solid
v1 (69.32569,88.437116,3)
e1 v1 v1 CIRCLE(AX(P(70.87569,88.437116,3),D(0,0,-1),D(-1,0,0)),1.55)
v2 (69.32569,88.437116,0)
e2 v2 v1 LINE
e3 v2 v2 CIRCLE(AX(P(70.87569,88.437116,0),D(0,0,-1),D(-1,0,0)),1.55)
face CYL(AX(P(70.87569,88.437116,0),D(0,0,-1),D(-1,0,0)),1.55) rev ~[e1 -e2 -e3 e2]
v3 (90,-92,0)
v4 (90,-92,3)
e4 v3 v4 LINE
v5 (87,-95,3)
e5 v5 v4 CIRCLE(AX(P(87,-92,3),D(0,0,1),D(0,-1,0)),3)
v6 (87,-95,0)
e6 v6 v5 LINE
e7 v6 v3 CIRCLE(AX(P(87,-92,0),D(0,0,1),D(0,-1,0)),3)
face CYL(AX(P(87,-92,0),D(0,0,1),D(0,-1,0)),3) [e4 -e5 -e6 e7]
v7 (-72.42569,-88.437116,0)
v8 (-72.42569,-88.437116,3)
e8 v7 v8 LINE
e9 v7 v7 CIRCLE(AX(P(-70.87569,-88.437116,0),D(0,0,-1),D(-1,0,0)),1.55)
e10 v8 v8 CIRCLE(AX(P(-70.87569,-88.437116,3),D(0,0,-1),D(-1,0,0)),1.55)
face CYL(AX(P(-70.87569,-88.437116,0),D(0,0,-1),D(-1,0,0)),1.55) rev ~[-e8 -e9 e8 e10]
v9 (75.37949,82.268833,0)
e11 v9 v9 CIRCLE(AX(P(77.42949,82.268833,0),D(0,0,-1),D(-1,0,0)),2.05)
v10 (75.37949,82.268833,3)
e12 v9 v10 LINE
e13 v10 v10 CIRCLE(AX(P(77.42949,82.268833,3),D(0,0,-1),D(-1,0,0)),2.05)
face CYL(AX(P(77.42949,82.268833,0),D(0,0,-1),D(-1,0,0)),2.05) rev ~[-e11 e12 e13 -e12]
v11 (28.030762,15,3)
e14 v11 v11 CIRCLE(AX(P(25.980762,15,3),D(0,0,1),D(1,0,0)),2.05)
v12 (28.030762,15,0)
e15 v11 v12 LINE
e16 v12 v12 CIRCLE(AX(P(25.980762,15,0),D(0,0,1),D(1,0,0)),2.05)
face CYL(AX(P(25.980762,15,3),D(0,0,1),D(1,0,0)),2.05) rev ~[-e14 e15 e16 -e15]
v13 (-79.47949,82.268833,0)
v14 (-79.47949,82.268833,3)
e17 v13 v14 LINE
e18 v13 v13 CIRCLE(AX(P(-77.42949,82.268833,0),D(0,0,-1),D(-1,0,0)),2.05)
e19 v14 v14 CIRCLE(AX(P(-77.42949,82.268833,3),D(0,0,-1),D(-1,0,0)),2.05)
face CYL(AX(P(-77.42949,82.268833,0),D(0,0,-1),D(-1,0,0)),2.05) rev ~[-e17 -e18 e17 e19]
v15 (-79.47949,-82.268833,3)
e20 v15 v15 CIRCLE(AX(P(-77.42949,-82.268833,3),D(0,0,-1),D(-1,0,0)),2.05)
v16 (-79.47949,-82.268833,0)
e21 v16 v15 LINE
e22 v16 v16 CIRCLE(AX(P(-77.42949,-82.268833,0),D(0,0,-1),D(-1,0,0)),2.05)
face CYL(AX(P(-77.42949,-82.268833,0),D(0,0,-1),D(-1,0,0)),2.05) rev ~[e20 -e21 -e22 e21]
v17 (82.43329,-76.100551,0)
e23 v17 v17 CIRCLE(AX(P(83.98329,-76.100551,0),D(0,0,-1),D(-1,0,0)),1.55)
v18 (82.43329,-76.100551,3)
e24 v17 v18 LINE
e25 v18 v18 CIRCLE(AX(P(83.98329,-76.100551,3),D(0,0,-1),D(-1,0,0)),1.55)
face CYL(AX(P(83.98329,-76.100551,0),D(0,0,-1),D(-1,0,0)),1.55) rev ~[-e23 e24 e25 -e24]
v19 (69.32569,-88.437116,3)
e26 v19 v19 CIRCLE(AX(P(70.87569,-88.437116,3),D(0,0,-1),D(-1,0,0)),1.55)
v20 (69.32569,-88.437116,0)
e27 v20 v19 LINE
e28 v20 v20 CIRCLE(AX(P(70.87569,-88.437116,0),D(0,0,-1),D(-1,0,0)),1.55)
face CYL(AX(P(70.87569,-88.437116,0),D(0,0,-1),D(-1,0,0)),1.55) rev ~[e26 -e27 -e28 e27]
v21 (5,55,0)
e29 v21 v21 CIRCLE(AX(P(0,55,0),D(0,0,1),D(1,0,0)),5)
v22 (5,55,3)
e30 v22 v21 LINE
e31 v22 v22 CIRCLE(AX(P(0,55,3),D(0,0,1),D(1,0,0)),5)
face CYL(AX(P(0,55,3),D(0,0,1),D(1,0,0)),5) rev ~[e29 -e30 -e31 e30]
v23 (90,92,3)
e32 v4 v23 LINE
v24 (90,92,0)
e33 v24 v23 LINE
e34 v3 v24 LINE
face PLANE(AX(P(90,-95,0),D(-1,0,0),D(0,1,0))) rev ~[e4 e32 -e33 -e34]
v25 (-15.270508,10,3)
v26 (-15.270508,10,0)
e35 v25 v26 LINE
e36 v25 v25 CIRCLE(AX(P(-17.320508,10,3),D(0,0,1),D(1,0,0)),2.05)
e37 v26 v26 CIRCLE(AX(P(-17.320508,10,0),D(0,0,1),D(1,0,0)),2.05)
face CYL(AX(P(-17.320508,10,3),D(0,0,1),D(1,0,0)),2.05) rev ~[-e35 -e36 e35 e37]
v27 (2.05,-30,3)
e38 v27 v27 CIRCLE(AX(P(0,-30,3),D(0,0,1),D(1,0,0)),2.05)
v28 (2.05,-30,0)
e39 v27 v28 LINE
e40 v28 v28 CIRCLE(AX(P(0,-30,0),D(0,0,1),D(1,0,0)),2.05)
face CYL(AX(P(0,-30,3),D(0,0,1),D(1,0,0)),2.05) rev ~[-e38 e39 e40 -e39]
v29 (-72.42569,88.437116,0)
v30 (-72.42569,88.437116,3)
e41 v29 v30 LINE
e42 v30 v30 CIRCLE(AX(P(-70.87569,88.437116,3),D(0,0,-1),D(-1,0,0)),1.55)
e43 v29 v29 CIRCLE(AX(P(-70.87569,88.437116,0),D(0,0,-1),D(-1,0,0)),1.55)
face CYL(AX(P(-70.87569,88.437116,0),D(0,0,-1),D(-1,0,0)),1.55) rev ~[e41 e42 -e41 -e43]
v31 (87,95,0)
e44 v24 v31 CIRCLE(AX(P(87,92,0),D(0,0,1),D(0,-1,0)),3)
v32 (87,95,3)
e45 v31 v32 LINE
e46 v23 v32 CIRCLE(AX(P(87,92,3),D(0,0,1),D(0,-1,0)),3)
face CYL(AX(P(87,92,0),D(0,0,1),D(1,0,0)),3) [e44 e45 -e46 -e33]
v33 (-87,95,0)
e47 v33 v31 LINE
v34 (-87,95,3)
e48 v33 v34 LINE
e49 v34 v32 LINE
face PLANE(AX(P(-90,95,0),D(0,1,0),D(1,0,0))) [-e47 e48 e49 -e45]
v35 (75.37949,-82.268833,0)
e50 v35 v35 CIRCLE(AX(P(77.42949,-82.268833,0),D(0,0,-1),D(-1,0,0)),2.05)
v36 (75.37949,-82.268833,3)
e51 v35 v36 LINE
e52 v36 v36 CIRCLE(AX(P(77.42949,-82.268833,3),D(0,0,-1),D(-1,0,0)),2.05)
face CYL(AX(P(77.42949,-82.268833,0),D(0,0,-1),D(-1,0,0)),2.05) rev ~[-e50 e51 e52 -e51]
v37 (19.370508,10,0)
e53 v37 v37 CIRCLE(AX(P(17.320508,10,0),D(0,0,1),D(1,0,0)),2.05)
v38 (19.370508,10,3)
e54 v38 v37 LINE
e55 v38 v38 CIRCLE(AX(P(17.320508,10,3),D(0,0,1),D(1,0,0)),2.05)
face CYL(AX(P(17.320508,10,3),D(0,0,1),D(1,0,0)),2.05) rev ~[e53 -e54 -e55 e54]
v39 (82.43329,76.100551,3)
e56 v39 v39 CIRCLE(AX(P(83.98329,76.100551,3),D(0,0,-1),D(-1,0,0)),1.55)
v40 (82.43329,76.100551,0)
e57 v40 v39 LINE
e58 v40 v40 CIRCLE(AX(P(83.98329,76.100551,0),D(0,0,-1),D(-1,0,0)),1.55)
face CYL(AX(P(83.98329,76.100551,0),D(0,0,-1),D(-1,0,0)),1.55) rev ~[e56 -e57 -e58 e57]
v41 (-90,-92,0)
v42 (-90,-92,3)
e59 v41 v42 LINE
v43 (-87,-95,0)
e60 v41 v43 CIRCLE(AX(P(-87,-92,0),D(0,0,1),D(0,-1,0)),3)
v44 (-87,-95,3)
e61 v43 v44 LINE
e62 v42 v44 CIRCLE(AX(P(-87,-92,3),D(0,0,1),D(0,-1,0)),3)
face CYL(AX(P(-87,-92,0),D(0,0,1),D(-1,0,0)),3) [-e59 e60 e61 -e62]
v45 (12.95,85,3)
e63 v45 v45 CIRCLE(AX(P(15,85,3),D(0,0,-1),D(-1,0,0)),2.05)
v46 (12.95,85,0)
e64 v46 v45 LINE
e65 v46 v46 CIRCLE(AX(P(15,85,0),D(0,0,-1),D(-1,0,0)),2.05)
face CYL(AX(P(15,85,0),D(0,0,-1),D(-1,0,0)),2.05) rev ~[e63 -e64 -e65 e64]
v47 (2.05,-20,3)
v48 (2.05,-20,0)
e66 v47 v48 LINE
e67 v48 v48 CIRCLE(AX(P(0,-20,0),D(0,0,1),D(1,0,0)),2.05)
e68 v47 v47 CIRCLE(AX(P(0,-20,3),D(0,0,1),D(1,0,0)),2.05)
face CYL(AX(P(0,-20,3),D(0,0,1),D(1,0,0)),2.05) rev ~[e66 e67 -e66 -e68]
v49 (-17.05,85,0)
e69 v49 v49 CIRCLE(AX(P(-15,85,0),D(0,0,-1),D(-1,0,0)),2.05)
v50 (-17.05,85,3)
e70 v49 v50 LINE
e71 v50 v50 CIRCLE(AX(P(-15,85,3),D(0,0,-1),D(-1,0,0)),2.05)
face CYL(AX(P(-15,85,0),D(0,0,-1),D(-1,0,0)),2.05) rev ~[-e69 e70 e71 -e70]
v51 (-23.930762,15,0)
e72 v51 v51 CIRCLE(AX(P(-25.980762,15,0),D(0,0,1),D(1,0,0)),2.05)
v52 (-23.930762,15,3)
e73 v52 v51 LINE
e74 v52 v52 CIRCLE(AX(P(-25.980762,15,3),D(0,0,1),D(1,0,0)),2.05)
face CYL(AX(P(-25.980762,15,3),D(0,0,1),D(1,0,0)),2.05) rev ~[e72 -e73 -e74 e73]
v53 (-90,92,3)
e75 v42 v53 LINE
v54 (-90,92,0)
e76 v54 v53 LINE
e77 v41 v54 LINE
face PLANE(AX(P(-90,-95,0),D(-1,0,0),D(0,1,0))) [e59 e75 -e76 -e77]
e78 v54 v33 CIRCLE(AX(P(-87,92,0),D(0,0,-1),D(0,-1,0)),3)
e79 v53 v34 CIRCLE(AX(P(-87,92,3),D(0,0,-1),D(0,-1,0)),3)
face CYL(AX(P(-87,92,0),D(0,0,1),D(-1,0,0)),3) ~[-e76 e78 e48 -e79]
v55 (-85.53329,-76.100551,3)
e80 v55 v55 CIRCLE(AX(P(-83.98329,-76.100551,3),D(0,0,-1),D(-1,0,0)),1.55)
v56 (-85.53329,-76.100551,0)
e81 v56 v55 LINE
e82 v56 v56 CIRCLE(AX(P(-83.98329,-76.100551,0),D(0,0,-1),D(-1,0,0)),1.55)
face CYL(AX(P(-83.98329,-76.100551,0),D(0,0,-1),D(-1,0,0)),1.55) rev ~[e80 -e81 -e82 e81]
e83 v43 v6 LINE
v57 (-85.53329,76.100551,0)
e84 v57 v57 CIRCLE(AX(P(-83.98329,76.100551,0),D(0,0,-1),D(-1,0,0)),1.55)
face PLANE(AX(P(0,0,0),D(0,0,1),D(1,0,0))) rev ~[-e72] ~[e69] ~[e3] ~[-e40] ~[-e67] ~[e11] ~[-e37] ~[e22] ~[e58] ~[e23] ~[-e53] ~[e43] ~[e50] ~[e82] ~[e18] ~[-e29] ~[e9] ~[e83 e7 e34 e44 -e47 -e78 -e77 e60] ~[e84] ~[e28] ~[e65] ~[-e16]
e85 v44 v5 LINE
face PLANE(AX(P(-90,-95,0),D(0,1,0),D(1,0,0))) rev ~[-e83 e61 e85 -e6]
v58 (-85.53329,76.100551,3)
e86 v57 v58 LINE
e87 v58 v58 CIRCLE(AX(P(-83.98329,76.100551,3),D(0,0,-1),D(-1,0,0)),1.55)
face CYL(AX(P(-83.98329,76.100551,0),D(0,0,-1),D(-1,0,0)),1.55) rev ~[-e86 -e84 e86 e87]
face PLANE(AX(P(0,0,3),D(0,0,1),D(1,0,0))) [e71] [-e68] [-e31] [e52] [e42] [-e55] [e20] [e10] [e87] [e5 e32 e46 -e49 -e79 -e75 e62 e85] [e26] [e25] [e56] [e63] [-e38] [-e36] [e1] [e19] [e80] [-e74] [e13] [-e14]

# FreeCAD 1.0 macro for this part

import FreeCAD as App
import Part
import Sketcher
from FreeCAD import Vector


def edges_at(feature, points):
    """Names of the edges that pass closest to the given points."""
    edges = feature.Shape.Edges
    near = lambda p: min(range(len(edges)), key=lambda i: edges[i].distToShape(Part.Vertex(*p))[0])
    return sorted({f"Edge{near(p) + 1}" for p in points})


def add_polygon(sketch, points):
    """Adds a closed chain of lines whose ends are joined by coincident constraints."""
    first, n = sketch.GeometryCount, len(points)
    for a, b in zip(points, points[1:] + points[:1]):
        sketch.addGeometry(Part.LineSegment(App.Vector(*a, 0), App.Vector(*b, 0)), False)
    for i in range(n):
        sketch.addConstraint(Sketcher.Constraint("Coincident", first + i, 2, first + (i + 1) % n, 1))

doc = App.newDocument("Part")
body = doc.addObject("PartDesign::Body", "Body")

# Sketch on XY plane
sketch1 = body.newObject("Sketcher::SketchObject", "Sketch")
sketch1.AttachmentSupport = (doc.getObject("XY_Plane"), [""])
sketch1.MapMode = "FlatFace"
add_polygon(sketch1, [(-90, 95), (-90, -95), (90, -95), (90, 95)])  # lines 0-3
sketch1.addConstraint([
    Sketcher.Constraint("Vertical", 0),
    Sketcher.Constraint("Horizontal", 1),
    Sketcher.Constraint("Vertical", 2),
    Sketcher.Constraint("Horizontal", 3),
    Sketcher.Constraint("Symmetric", 0, 2, 2, 2, -1, 1),
    Sketcher.Constraint("DistanceX", 1, 1, 1, 2, 180.0),
    Sketcher.Constraint("DistanceY", 0, 2, 0, 1, 190.0),
])
pad1 = body.newObject("PartDesign::Pad", "Pad")
pad1.Profile = sketch1
pad1.Length = 3
doc.recompute()

fillet = body.newObject("PartDesign::Fillet", "Fillet")
fillet.Base = (pad1, edges_at(pad1, [
    (90, -95, 1.5),
    (-90, -95, 1.5),
    (-90, 95, 1.5),
    (90, 95, 1.5),
]))
fillet.Radius = 3

# Sketch on XY plane
sketch2 = body.newObject("Sketcher::SketchObject", "Sketch001")
sketch2.AttachmentSupport = (doc.getObject("XY_Plane"), [""])
sketch2.MapMode = "FlatFace"
sketch2.addGeometry([
    Part.Circle(Vector(77.42949, 82.268833, 0), Vector(0, 0, 1), 2.05),  # 0
    Part.Circle(Vector(-77.42949, 82.268833, 0), Vector(0, 0, 1), 2.05),  # 1
    Part.Circle(Vector(77.42949, -82.268833, 0), Vector(0, 0, 1), 2.05),  # 2
    Part.Circle(Vector(-77.42949, -82.268833, 0), Vector(0, 0, 1), 2.05),  # 3
    Part.Circle(Vector(70.87569, 88.437116, 0), Vector(0, 0, 1), 1.55),  # 4
    Part.Circle(Vector(83.98329, 76.100551, 0), Vector(0, 0, 1), 1.55),  # 5
    Part.Circle(Vector(-70.87569, 88.437116, 0), Vector(0, 0, 1), 1.55),  # 6
    Part.Circle(Vector(-83.98329, 76.100551, 0), Vector(0, 0, 1), 1.55),  # 7
    Part.Circle(Vector(83.98329, -76.100551, 0), Vector(0, 0, 1), 1.55),  # 8
    Part.Circle(Vector(70.87569, -88.437116, 0), Vector(0, 0, 1), 1.55),  # 9
    Part.Circle(Vector(-83.98329, -76.100551, 0), Vector(0, 0, 1), 1.55),  # 10
    Part.Circle(Vector(-70.87569, -88.437116, 0), Vector(0, 0, 1), 1.55),  # 11
], False)
sketch2.addConstraint([
    Sketcher.Constraint("Equal", 0, 1),
    Sketcher.Constraint("Equal", 1, 2),
    Sketcher.Constraint("Equal", 2, 3),
    Sketcher.Constraint("Equal", 4, 5),
    Sketcher.Constraint("Equal", 5, 6),
    Sketcher.Constraint("Equal", 6, 7),
    Sketcher.Constraint("Equal", 7, 8),
    Sketcher.Constraint("Equal", 8, 9),
    Sketcher.Constraint("Equal", 9, 10),
    Sketcher.Constraint("Equal", 10, 11),
    Sketcher.Constraint("Symmetric", 1, 3, 2, 3, -1, 1),
    Sketcher.Constraint("Symmetric", 0, 3, 3, 3, -1, 1),
    Sketcher.Constraint("Symmetric", 7, 3, 8, 3, -1, 1),
    Sketcher.Constraint("Symmetric", 6, 3, 9, 3, -1, 1),
    Sketcher.Constraint("Symmetric", 5, 3, 10, 3, -1, 1),
    Sketcher.Constraint("Symmetric", 4, 3, 11, 3, -1, 1),
    Sketcher.Constraint("Symmetric", 0, 3, 1, 3, -2),
    Sketcher.Constraint("Symmetric", 4, 3, 6, 3, -2),
    Sketcher.Constraint("Symmetric", 5, 3, 7, 3, -2),
    Sketcher.Constraint("Diameter", 0, 4.1),
    Sketcher.Constraint("Diameter", 4, 3.1),
    Sketcher.Constraint("DistanceX", 4, 3, 0, 3, 6.5538),
    Sketcher.Constraint("DistanceX", 0, 3, 5, 3, 6.5538),
    Sketcher.Constraint("DistanceX", -1, 1, 0, 3, 77.42949),
    Sketcher.Constraint("DistanceY", -1, 1, 5, 3, 76.100551),
    Sketcher.Constraint("DistanceY", 2, 3, 4, 3, 170.705949),
    Sketcher.Constraint("DistanceY", -1, 1, 0, 3, 82.268833),
])
pocket1 = body.newObject("PartDesign::Pocket", "Pocket")
pocket1.Profile = sketch2
pocket1.Length = 3
pocket1.Reversed = True

# Sketch on XY plane
sketch3 = body.newObject("Sketcher::SketchObject", "Sketch002")
sketch3.AttachmentSupport = (doc.getObject("XY_Plane"), [""])
sketch3.MapMode = "FlatFace"
sketch3.AttachmentOffset = App.Placement(Vector(0, 0, 3), App.Rotation())
sketch3.addGeometry(Part.Circle(Vector(0, -20, 0), Vector(0, 0, 1), 2.05), False)
sketch3.addConstraint([
    Sketcher.Constraint("PointOnObject", 0, 3, -2),
    Sketcher.Constraint("Diameter", 0, 4.1),
    Sketcher.Constraint("DistanceY", 0, 3, -1, 1, 20.0),
])
pocket2 = body.newObject("PartDesign::Pocket", "Pocket001")
pocket2.Profile = sketch3
pocket2.Type = "UpToFirst"

# Sketch on XY plane
sketch4 = body.newObject("Sketcher::SketchObject", "Sketch003")
sketch4.AttachmentSupport = (doc.getObject("XY_Plane"), [""])
sketch4.MapMode = "FlatFace"
sketch4.AttachmentOffset = App.Placement(Vector(0, 0, 3), App.Rotation())
sketch4.addGeometry(Part.Circle(Vector(0, -30, 0), Vector(0, 0, 1), 2.05), False)
sketch4.addConstraint([
    Sketcher.Constraint("PointOnObject", 0, 3, -2),
    Sketcher.Constraint("Diameter", 0, 4.1),
    Sketcher.Constraint("DistanceY", 0, 3, -1, 1, 30.0),
])
pocket3 = body.newObject("PartDesign::Pocket", "Pocket002")
pocket3.Profile = sketch4
pocket3.Type = "UpToFirst"

# Sketch on XY plane
sketch5 = body.newObject("Sketcher::SketchObject", "Sketch004")
sketch5.AttachmentSupport = (doc.getObject("XY_Plane"), [""])
sketch5.MapMode = "FlatFace"
sketch5.AttachmentOffset = App.Placement(Vector(0, 0, 3), App.Rotation())
sketch5.addGeometry(Part.Circle(Vector(-17.320508, 10, 0), Vector(0, 0, 1), 2.05), False)
sketch5.addConstraint([
    Sketcher.Constraint("Diameter", 0, 4.1),
    Sketcher.Constraint("DistanceY", -1, 1, 0, 3, 10.0),
    Sketcher.Constraint("DistanceX", 0, 3, -1, 1, 17.320508),
])
pocket4 = body.newObject("PartDesign::Pocket", "Pocket003")
pocket4.Profile = sketch5
pocket4.Type = "UpToFirst"

# Sketch on XY plane
sketch6 = body.newObject("Sketcher::SketchObject", "Sketch005")
sketch6.AttachmentSupport = (doc.getObject("XY_Plane"), [""])
sketch6.MapMode = "FlatFace"
sketch6.AttachmentOffset = App.Placement(Vector(0, 0, 3), App.Rotation())
sketch6.addGeometry(Part.Circle(Vector(-25.980762, 15, 0), Vector(0, 0, 1), 2.05), False)
sketch6.addConstraint([
    Sketcher.Constraint("Diameter", 0, 4.1),
    Sketcher.Constraint("DistanceY", -1, 1, 0, 3, 15.0),
    Sketcher.Constraint("DistanceX", 0, 3, -1, 1, 25.980762),
])
pocket5 = body.newObject("PartDesign::Pocket", "Pocket004")
pocket5.Profile = sketch6
pocket5.Type = "UpToFirst"

# Sketch on XY plane
sketch7 = body.newObject("Sketcher::SketchObject", "Sketch006")
sketch7.AttachmentSupport = (doc.getObject("XY_Plane"), [""])
sketch7.MapMode = "FlatFace"
sketch7.AttachmentOffset = App.Placement(Vector(0, 0, 3), App.Rotation())
sketch7.addGeometry(Part.Circle(Vector(17.320508, 10, 0), Vector(0, 0, 1), 2.05), False)
sketch7.addConstraint([
    Sketcher.Constraint("Diameter", 0, 4.1),
    Sketcher.Constraint("DistanceY", -1, 1, 0, 3, 10.0),
    Sketcher.Constraint("DistanceX", -1, 1, 0, 3, 17.320508),
])
pocket6 = body.newObject("PartDesign::Pocket", "Pocket005")
pocket6.Profile = sketch7
pocket6.Type = "UpToFirst"

# Sketch on XY plane
sketch8 = body.newObject("Sketcher::SketchObject", "Sketch007")
sketch8.AttachmentSupport = (doc.getObject("XY_Plane"), [""])
sketch8.MapMode = "FlatFace"
sketch8.AttachmentOffset = App.Placement(Vector(0, 0, 3), App.Rotation())
sketch8.addGeometry(Part.Circle(Vector(25.980762, 15, 0), Vector(0, 0, 1), 2.05), False)
sketch8.addConstraint([
    Sketcher.Constraint("Diameter", 0, 4.1),
    Sketcher.Constraint("DistanceY", -1, 1, 0, 3, 15.0),
    Sketcher.Constraint("DistanceX", -1, 1, 0, 3, 25.980762),
])
pocket7 = body.newObject("PartDesign::Pocket", "Pocket006")
pocket7.Profile = sketch8
pocket7.Type = "UpToFirst"

# Sketch on XY plane
sketch9 = body.newObject("Sketcher::SketchObject", "Sketch008")
sketch9.AttachmentSupport = (doc.getObject("XY_Plane"), [""])
sketch9.MapMode = "FlatFace"
sketch9.addGeometry(Part.Circle(Vector(15, 85, 0), Vector(0, 0, 1), 2.05), False)
sketch9.addConstraint([
    Sketcher.Constraint("Diameter", 0, 4.1),
    Sketcher.Constraint("DistanceX", -1, 1, 0, 3, 15.0),
    Sketcher.Constraint("DistanceY", -1, 1, 0, 3, 85.0),
])
pocket8 = body.newObject("PartDesign::Pocket", "Pocket007")
pocket8.Profile = sketch9
pocket8.Type = "UpToFirst"
pocket8.Reversed = True

# Sketch on XY plane
sketch10 = body.newObject("Sketcher::SketchObject", "Sketch009")
sketch10.AttachmentSupport = (doc.getObject("XY_Plane"), [""])
sketch10.MapMode = "FlatFace"
sketch10.addGeometry(Part.Circle(Vector(-15, 85, 0), Vector(0, 0, 1), 2.05), False)
sketch10.addConstraint([
    Sketcher.Constraint("Diameter", 0, 4.1),
    Sketcher.Constraint("DistanceX", 0, 3, -1, 1, 15.0),
    Sketcher.Constraint("DistanceY", -1, 1, 0, 3, 85.0),
])
pocket9 = body.newObject("PartDesign::Pocket", "Pocket008")
pocket9.Profile = sketch10
pocket9.Type = "UpToFirst"
pocket9.Reversed = True

# Sketch on XY plane
sketch11 = body.newObject("Sketcher::SketchObject", "Sketch010")
sketch11.AttachmentSupport = (doc.getObject("XY_Plane"), [""])
sketch11.MapMode = "FlatFace"
sketch11.AttachmentOffset = App.Placement(Vector(0, 0, 3), App.Rotation())
sketch11.addGeometry(Part.Circle(Vector(0, 55, 0), Vector(0, 0, 1), 5), False)
sketch11.addConstraint([
    Sketcher.Constraint("PointOnObject", 0, 3, -2),
    Sketcher.Constraint("Diameter", 0, 10.0),
    Sketcher.Constraint("DistanceY", -1, 1, 0, 3, 55.0),
])
pocket10 = body.newObject("PartDesign::Pocket", "Pocket009")
pocket10.Profile = sketch11
pocket10.Type = "UpToFirst"

doc.recompute()
